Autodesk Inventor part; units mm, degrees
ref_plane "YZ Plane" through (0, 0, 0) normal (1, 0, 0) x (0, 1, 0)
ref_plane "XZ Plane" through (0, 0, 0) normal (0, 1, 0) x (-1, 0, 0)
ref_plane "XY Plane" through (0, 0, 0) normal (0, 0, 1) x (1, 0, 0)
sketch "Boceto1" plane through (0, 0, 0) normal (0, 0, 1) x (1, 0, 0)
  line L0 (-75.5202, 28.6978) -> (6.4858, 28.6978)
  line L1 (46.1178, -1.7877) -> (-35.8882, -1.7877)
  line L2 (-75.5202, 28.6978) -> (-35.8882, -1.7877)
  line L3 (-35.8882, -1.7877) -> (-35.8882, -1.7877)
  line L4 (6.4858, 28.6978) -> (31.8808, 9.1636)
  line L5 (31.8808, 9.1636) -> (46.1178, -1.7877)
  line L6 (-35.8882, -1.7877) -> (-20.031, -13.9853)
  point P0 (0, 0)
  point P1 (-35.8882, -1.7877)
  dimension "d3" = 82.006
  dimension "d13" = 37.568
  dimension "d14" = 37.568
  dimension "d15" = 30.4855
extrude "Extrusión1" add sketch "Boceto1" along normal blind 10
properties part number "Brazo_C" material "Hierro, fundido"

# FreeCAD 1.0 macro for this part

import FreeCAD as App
import Part
import Sketcher
Q = App.Units.Quantity

doc = App.newDocument("Part")
params = doc.addObject("Spreadsheet::Sheet", "Params")
for row, (alias, value) in enumerate([
    ("pad1_length", "10 mm"),
], start=1):
    params.set(f"A{row}", alias)
    params.set(f"B{row}", "=" + value)
    params.setAlias(f"B{row}", alias)

body = doc.addObject("PartDesign::Body", "Body")

sketch1 = doc.addObject("Sketcher::SketchObject", "Sketch")
body.addObject(sketch1)
sketch1.AttachmentSupport = (doc.XY_Plane, [""])
sketch1.MapMode = "FlatFace"
sketch1.addGeometry([
    Part.LineSegment(App.Vector(6, 29, 0), App.Vector(-76, 29, 0)),
    Part.LineSegment(App.Vector(-76, 29, 0), App.Vector(-36, -2, 0)),
    Part.LineSegment(App.Vector(-36, -2, 0), App.Vector(46, -2, 0)),
    Part.LineSegment(App.Vector(46, -2, 0), App.Vector(32, 9, 0)),
    Part.LineSegment(App.Vector(32, 9, 0), App.Vector(6, 29, 0)),
], False)
sketch1.addConstraint([
    Sketcher.Constraint("Coincident", 0, 2, 1, 1),
    Sketcher.Constraint("Coincident", 1, 2, 2, 1),
    Sketcher.Constraint("Coincident", 2, 2, 3, 1),
    Sketcher.Constraint("Coincident", 3, 2, 4, 1),
    Sketcher.Constraint("Coincident", 4, 2, 0, 1),
    Sketcher.Constraint("Horizontal", 0),
    Sketcher.Constraint("Horizontal", 2),
    Sketcher.Constraint("Parallel", 1, 3),
    Sketcher.Constraint("Parallel", 3, 4),
    Sketcher.Constraint("DistanceX", 0, 2, 0, 1, Q("82.006 mm")),
    Sketcher.Constraint("DistanceY", 1, 2, 0, 2, Q("30.4855 mm")),
    Sketcher.Constraint("Distance", 4, Q("32.039 mm")),
    Sketcher.Constraint("DistanceX", 0, 2, 1, 2, Q("39.632 mm")),
    Sketcher.Constraint("DistanceX", 0, 2, -1, 1, Q("75.5202 mm")),
    Sketcher.Constraint("DistanceY", -1, 1, 0, 2, Q("28.6978 mm")),
])
pad1 = doc.addObject("PartDesign::Pad", "Pad")
body.addObject(pad1)
pad1.Profile = sketch1
pad1.setExpression("Length", "Params.pad1_length")

doc.recompute()
